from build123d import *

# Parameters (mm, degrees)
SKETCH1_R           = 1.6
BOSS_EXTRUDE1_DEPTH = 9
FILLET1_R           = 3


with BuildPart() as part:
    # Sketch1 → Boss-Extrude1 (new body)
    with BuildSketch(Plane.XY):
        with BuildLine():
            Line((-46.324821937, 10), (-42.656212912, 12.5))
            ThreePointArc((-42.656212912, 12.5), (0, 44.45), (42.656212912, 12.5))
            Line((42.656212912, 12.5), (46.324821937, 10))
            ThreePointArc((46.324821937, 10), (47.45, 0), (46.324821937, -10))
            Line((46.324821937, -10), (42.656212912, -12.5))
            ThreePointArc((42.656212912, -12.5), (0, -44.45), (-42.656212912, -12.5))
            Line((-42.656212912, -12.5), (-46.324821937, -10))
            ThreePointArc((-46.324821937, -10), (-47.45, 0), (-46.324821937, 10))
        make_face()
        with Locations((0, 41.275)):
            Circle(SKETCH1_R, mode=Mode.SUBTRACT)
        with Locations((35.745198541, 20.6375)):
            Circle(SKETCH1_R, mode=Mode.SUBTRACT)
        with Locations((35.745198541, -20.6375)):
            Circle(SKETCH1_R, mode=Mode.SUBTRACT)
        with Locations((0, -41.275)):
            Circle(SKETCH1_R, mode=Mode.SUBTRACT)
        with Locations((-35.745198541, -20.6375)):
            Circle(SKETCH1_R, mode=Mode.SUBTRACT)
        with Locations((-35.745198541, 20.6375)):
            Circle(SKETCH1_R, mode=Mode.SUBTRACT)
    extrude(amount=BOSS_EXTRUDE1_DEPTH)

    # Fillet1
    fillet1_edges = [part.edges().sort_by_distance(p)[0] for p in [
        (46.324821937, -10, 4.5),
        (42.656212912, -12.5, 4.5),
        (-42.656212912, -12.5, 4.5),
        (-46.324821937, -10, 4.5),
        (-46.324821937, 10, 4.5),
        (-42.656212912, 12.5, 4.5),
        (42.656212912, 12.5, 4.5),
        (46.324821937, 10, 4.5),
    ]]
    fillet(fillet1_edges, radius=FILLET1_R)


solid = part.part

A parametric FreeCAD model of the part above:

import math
import FreeCAD as App
import Part
import Sketcher

V = App.Vector


def edges_at(feature, points):
    """Names of the edges that pass closest to the given points."""
    edges = feature.Shape.Edges
    near = lambda p: min(range(len(edges)), key=lambda i: edges[i].distToShape(Part.Vertex(*p))[0])
    return sorted({f"Edge{near(p) + 1}" for p in points})

doc = App.newDocument("Part")
params = doc.addObject("Spreadsheet::Sheet", "Params")
for row, (alias, value) in enumerate([
    ("sketch1_radius", "45 mm"),
    ("sketch1_diameter", "3.2 mm"),
    ("sketch1_radius2", "44.45 mm"),
    ("pad1_length", "9 mm"),
    ("fillet_radius", "3 mm"),
], start=1):
    params.set(f"A{row}", alias)
    params.set(f"B{row}", "=" + value)
    params.setAlias(f"B{row}", alias)

body = doc.addObject("PartDesign::Body", "Body")

sketch1 = body.newObject("Sketcher::SketchObject", "Sketch")
sketch1.AttachmentSupport = (doc.getObject("XY_Plane"), [""])
sketch1.MapMode = "FlatFace"
sketch1.addGeometry(Part.LineSegment(V(-42.7, 12.5, 0), V(-46.3, 10, 0)), False)
sketch1.addGeometry(Part.ArcOfCircle(Part.Circle(V(-2.4, 0, 0), V(0, 0, 1), 45), math.radians(167), math.radians(193)), False)
sketch1.addGeometry(Part.LineSegment(V(-46.3, -10, 0), V(-42.7, -12.5, 0)), False)
sketch1.addGeometry(Part.ArcOfCircle(Part.Circle(V(0, 0, 0), V(0, 0, 1), 44.5), math.radians(-164), math.radians(-16)), False)
sketch1.addGeometry(Part.LineSegment(V(42.7, -12.5, 0), V(46.3, -10, 0)), False)
sketch1.addGeometry(Part.ArcOfCircle(Part.Circle(V(2.4, 0, 0), V(0, 0, 1), 45), math.radians(-13), math.radians(13)), False)
sketch1.addGeometry(Part.LineSegment(V(46.3, 10, 0), V(42.7, 12.5, 0)), False)
sketch1.addGeometry(Part.ArcOfCircle(Part.Circle(V(0, 0, 0), V(0, 0, 1), 44.5), math.radians(16), math.radians(164)), False)
sketch1.addGeometry(Part.Circle(V(35.7, -20.6, 0), V(0, 0, 1), 1.6), False)
sketch1.addGeometry(Part.Circle(V(0, -41.3, 0), V(0, 0, 1), 1.6), False)
sketch1.addGeometry(Part.Circle(V(-35.7, -20.6, 0), V(0, 0, 1), 1.6), False)
sketch1.addGeometry(Part.Circle(V(35.7, 20.6, 0), V(0, 0, 1), 1.6), False)
sketch1.addGeometry(Part.Circle(V(-35.7, 20.6, 0), V(0, 0, 1), 1.6), False)
sketch1.addGeometry(Part.Circle(V(0, 41.3, 0), V(0, 0, 1), 1.6), False)
sketch1.addConstraint(Sketcher.Constraint("Coincident", 0, 2, 1, 1))
sketch1.addConstraint(Sketcher.Constraint("Coincident", 1, 2, 2, 1))
sketch1.addConstraint(Sketcher.Constraint("Coincident", 2, 2, 3, 1))
sketch1.addConstraint(Sketcher.Constraint("Coincident", 3, 2, 4, 1))
sketch1.addConstraint(Sketcher.Constraint("Coincident", 4, 2, 5, 1))
sketch1.addConstraint(Sketcher.Constraint("Coincident", 5, 2, 6, 1))
sketch1.addConstraint(Sketcher.Constraint("Coincident", 6, 2, 7, 1))
sketch1.addConstraint(Sketcher.Constraint("Coincident", 7, 2, 0, 1))
sketch1.addConstraint(Sketcher.Constraint("Coincident", 3, 3, -1, 1))
sketch1.addConstraint(Sketcher.Constraint("Coincident", 7, 3, -1, 1))
sketch1.addConstraint(Sketcher.Constraint("Equal", 1, 5))
sketch1.addConstraint(Sketcher.Constraint("Equal", 3, 7))
sketch1.addConstraint(Sketcher.Constraint("Equal", 8, 9))
sketch1.addConstraint(Sketcher.Constraint("Equal", 9, 10))
sketch1.addConstraint(Sketcher.Constraint("Equal", 10, 11))
sketch1.addConstraint(Sketcher.Constraint("Equal", 11, 12))
sketch1.addConstraint(Sketcher.Constraint("Equal", 12, 13))
sketch1.addConstraint(Sketcher.Constraint("Symmetric", 1, 3, 5, 3, -1, 1))
sketch1.addConstraint(Sketcher.Constraint("Symmetric", 10, 3, 11, 3, -1, 1))
sketch1.addConstraint(Sketcher.Constraint("Symmetric", 8, 3, 12, 3, -1, 1))
sketch1.addConstraint(Sketcher.Constraint("Symmetric", 9, 3, 13, 3, -1, 1))
sketch1.addConstraint(Sketcher.Constraint("Symmetric", 8, 3, 10, 3, -2))
sketch1.addConstraint(Sketcher.Constraint("Symmetric", 1, 2, 4, 2, -2))
sketch1.addConstraint(Sketcher.Constraint("PointOnObject", 9, 3, -2))
sketch1.addConstraint(Sketcher.Constraint("Parallel", 0, 4))
sketch1.addConstraint(Sketcher.Constraint("Parallel", 2, 6))
sketch1.addConstraint(Sketcher.Constraint("Horizontal", 2, 2, 3, 2))
sketch1.addConstraint(Sketcher.Constraint("Horizontal", 0, 2, 5, 2))
sketch1.addConstraint(Sketcher.Constraint("Vertical", 0, 2, 1, 2))
sketch1.addConstraint(Sketcher.Constraint("Radius", 1, 45.0))
sketch1.addConstraint(Sketcher.Constraint("Diameter", 8, 3.2))
sketch1.addConstraint(Sketcher.Constraint("Radius", 3, 44.45))
sketch1.addConstraint(Sketcher.Constraint("DistanceY", -1, 1, 0, 2, 10.0))
sketch1.addConstraint(Sketcher.Constraint("DistanceY", 3, 2, 6, 2, 25.0))
sketch1.addConstraint(Sketcher.Constraint("DistanceX", 1, 3, 5, 3, 4.9))
sketch1.addConstraint(Sketcher.Constraint("DistanceY", 9, 3, -1, 1, 41.275))
sketch1.addConstraint(Sketcher.Constraint("DistanceY", 8, 3, 11, 3, 41.275))
sketch1.addConstraint(Sketcher.Constraint("DistanceX", -1, 1, 8, 3, 35.745199))
sketch1.setExpression("Constraints[29]", "Params.sketch1_radius")
sketch1.setExpression("Constraints[30]", "Params.sketch1_diameter")
sketch1.setExpression("Constraints[31]", "Params.sketch1_radius2")
pad1 = body.newObject("PartDesign::Pad", "Pad")
pad1.Profile = sketch1
pad1.setExpression("Length", "Params.pad1_length")
doc.recompute()

fillet = body.newObject("PartDesign::Fillet", "Fillet")
fillet.Base = (pad1, edges_at(pad1, [
    (46.325, -10, 4.5),
    (42.656, -12.5, 4.5),
    (-42.656, -12.5, 4.5),
    (-46.325, -10, 4.5),
    (-46.325, 10, 4.5),
    (-42.656, 12.5, 4.5),
    (42.656, 12.5, 4.5),
    (46.325, 10, 4.5),
]))
fillet.setExpression("Radius", "Params.fillet_radius")

doc.recompute()
